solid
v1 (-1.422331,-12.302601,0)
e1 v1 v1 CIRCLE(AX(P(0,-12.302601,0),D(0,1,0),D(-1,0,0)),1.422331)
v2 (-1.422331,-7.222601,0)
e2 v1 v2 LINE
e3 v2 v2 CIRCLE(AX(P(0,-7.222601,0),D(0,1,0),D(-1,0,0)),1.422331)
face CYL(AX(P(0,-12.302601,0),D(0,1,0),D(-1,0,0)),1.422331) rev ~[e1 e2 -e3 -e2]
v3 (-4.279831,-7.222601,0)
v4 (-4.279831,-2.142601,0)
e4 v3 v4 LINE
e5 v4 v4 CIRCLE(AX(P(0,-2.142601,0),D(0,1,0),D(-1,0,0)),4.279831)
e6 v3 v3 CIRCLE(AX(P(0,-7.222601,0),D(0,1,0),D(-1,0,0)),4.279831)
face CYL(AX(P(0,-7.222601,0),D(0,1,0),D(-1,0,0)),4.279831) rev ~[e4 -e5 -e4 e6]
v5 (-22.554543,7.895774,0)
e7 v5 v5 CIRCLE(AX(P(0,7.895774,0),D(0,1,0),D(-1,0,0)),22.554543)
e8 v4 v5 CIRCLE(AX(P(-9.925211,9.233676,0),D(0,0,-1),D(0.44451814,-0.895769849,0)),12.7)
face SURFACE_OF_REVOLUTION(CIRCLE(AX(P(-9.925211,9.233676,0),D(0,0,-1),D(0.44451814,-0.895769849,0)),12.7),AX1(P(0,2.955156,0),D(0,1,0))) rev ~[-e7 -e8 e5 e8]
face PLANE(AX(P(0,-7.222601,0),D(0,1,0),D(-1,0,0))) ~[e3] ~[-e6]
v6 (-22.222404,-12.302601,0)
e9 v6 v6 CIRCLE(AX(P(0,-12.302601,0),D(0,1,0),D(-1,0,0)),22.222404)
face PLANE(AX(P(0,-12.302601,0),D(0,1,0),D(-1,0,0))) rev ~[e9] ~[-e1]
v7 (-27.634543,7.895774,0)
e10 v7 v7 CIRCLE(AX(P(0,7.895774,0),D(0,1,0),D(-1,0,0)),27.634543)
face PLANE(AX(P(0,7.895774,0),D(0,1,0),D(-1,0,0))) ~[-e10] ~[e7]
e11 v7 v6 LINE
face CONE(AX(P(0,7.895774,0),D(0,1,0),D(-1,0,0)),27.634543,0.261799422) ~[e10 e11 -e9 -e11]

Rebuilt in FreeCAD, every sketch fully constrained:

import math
import FreeCAD as App
import Part
import Sketcher
Q = App.Units.Quantity

doc = App.newDocument("Part")
body = doc.addObject("PartDesign::Body", "Body")

# Sketch on XY plane
sketch1 = body.newObject("Sketcher::SketchObject", "Sketch")
sketch1.AttachmentSupport = (doc.getObject("XY_Plane"), [""])
sketch1.MapMode = "FlatFace"
sketch1.addGeometry([
    Part.LineSegment(App.Vector(-1.4, -7.2, 0), App.Vector(-4.3, -7.2, 0)),  # 0
    Part.LineSegment(App.Vector(-4.3, -7.2, 0), App.Vector(-4.3, -2.1, 0)),  # 1
    Part.ArcOfCircle(Part.Circle(App.Vector(-9.9, 9.2, 0), App.Vector(0, 0, 1), 12.7), math.radians(-174), math.radians(-64)),  # 2
    Part.LineSegment(App.Vector(-22.6, 7.9, 0), App.Vector(-27.6, 7.9, 0)),  # 3
    Part.LineSegment(App.Vector(-27.6, 7.9, 0), App.Vector(-22.2, -12.3, 0)),  # 4
    Part.LineSegment(App.Vector(-22.2, -12.3, 0), App.Vector(-1.4, -12.3, 0)),  # 5
    Part.LineSegment(App.Vector(-1.4, -12.3, 0), App.Vector(-1.4, -7.2, 0)),  # 6
], False)
sketch1.addConstraint([
    Sketcher.Constraint("Coincident", 0, 2, 1, 1),
    Sketcher.Constraint("Coincident", 1, 2, 2, 2),
    Sketcher.Constraint("Coincident", 2, 1, 3, 1),
    Sketcher.Constraint("Coincident", 3, 2, 4, 1),
    Sketcher.Constraint("Coincident", 4, 2, 5, 1),
    Sketcher.Constraint("Coincident", 5, 2, 6, 1),
    Sketcher.Constraint("Coincident", 6, 2, 0, 1),
    Sketcher.Constraint("Horizontal", 0),
    Sketcher.Constraint("Vertical", 1),
    Sketcher.Constraint("Horizontal", 3),
    Sketcher.Constraint("Horizontal", 5),
    Sketcher.Constraint("Vertical", 6),
    Sketcher.Constraint("Equal", 3, 1),
    Sketcher.Constraint("Equal", 1, 6),
    Sketcher.Constraint("Radius", 2, Q("0.5 in")),
    Sketcher.Constraint("DistanceX", 3, 2, 3, 1, Q("0.2 in")),
    Sketcher.Constraint("Angle", 4, Q("-74.999998 deg")),
    Sketcher.Constraint("DistanceX", 0, 2, 0, 1, Q("0.1125 in")),
    Sketcher.Constraint("DistanceY", 0, 2, -1, 1, Q("7.222601 mm")),
    Sketcher.Constraint("DistanceX", 5, 1, 5, 2, Q("20.800073 mm")),
    Sketcher.Constraint("DistanceX", 2, 3, -1, 1, Q("9.925211 mm")),
    Sketcher.Constraint("DistanceX", 0, 2, -1, 1, Q("4.279831 mm")),
])
revolution = body.newObject("PartDesign::Revolution", "Revolution")
revolution.Profile = sketch1
revolution.ReferenceAxis = (sketch1, ["V_Axis"])
revolution.Angle = 360

doc.recompute()
